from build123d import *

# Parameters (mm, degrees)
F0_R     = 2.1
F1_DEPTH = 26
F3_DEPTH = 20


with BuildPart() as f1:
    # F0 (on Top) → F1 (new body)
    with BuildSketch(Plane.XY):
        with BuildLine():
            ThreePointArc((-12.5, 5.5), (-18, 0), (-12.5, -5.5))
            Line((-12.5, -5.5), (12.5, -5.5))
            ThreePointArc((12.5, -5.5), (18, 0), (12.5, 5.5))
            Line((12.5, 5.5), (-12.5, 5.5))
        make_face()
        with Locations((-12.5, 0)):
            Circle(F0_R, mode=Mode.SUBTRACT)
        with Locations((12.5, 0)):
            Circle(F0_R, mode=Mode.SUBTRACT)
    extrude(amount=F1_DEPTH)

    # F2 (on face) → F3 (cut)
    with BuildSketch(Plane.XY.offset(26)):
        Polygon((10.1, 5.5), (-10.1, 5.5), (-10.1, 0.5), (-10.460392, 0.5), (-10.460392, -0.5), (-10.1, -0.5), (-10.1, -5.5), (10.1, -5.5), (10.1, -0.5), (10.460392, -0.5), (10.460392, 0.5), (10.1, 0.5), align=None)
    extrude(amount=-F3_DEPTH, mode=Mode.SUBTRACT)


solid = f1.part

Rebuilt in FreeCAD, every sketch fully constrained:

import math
import FreeCAD as App
import Part
import Sketcher


def add_polygon(sketch, points):
    """Adds a closed chain of lines whose ends are joined by coincident constraints."""
    first, n = sketch.GeometryCount, len(points)
    for a, b in zip(points, points[1:] + points[:1]):
        sketch.addGeometry(Part.LineSegment(App.Vector(*a, 0), App.Vector(*b, 0)), False)
    for i in range(n):
        sketch.addConstraint(Sketcher.Constraint("Coincident", first + i, 2, first + (i + 1) % n, 1))

doc = App.newDocument("Part")
body = doc.addObject("PartDesign::Body", "Body")

sketch1 = body.newObject("Sketcher::SketchObject", "Sketch")
sketch1.AttachmentSupport = (doc.getObject("XY_Plane"), [""])
sketch1.MapMode = "FlatFace"
sketch1.addGeometry(Part.ArcOfCircle(Part.Circle(App.Vector(-12.5, 0, 0), App.Vector(0, 0, 1), 5.5), math.radians(90), math.radians(270)), False)
sketch1.addGeometry(Part.LineSegment(App.Vector(-12.5, -5.5, 0), App.Vector(12.5, -5.5, 0)), False)
sketch1.addGeometry(Part.ArcOfCircle(Part.Circle(App.Vector(12.5, 0, 0), App.Vector(0, 0, 1), 5.5), math.radians(-90), math.radians(90)), False)
sketch1.addGeometry(Part.LineSegment(App.Vector(12.5, 5.5, 0), App.Vector(-12.5, 5.5, 0)), False)
sketch1.addGeometry(Part.Circle(App.Vector(-12.5, 0, 0), App.Vector(0, 0, 1), 2.1), False)
sketch1.addGeometry(Part.Circle(App.Vector(12.5, 0, 0), App.Vector(0, 0, 1), 2.1), False)
sketch1.addConstraint(Sketcher.Constraint("Tangent", 0, 2, 1, 1))
sketch1.addConstraint(Sketcher.Constraint("Tangent", 1, 2, 2, 1))
sketch1.addConstraint(Sketcher.Constraint("Tangent", 2, 2, 3, 1))
sketch1.addConstraint(Sketcher.Constraint("Tangent", 3, 2, 0, 1))
sketch1.addConstraint(Sketcher.Constraint("Horizontal", 1))
sketch1.addConstraint(Sketcher.Constraint("Horizontal", 3))
sketch1.addConstraint(Sketcher.Constraint("Coincident", 4, 3, 0, 3))
sketch1.addConstraint(Sketcher.Constraint("Coincident", 5, 3, 2, 3))
sketch1.addConstraint(Sketcher.Constraint("Equal", 4, 5))
sketch1.addConstraint(Sketcher.Constraint("Symmetric", 0, 3, 2, 3, -1, 1))
sketch1.addConstraint(Sketcher.Constraint("Diameter", 4, 4.2))
sketch1.addConstraint(Sketcher.Constraint("Radius", 0, 5.5))
sketch1.addConstraint(Sketcher.Constraint("DistanceX", 1, 1, 1, 2, 25.0))
pad1 = body.newObject("PartDesign::Pad", "Pad")
pad1.Profile = sketch1
pad1.Length = 26

sketch2 = body.newObject("Sketcher::SketchObject", "Sketch001")
sketch2.AttachmentSupport = (doc.getObject("XY_Plane"), [""])
sketch2.MapMode = "FlatFace"
sketch2.AttachmentOffset = App.Placement(App.Vector(0, 0, 26), App.Rotation())
add_polygon(sketch2, [(10.1, 5.5), (-10.1, 5.5), (-10.1, 0.5), (-10.46, 0.5), (-10.46, -0.5), (-10.1, -0.5), (-10.1, -5.5), (10.1, -5.5), (10.1, -0.5), (10.46, -0.5), (10.46, 0.5), (10.1, 0.5)])
sketch2.addConstraint(Sketcher.Constraint("Horizontal", 0))
sketch2.addConstraint(Sketcher.Constraint("Vertical", 1))
sketch2.addConstraint(Sketcher.Constraint("Horizontal", 2))
sketch2.addConstraint(Sketcher.Constraint("Vertical", 3))
sketch2.addConstraint(Sketcher.Constraint("Horizontal", 4))
sketch2.addConstraint(Sketcher.Constraint("Vertical", 5))
sketch2.addConstraint(Sketcher.Constraint("Horizontal", 6))
sketch2.addConstraint(Sketcher.Constraint("Vertical", 7))
sketch2.addConstraint(Sketcher.Constraint("Horizontal", 8))
sketch2.addConstraint(Sketcher.Constraint("Vertical", 9))
sketch2.addConstraint(Sketcher.Constraint("Horizontal", 10))
sketch2.addConstraint(Sketcher.Constraint("Vertical", 11))
sketch2.addConstraint(Sketcher.Constraint("Symmetric", 0, 2, 6, 2, -1, 1))
sketch2.addConstraint(Sketcher.Constraint("Symmetric", 2, 2, 8, 2, -1, 1))
sketch2.addConstraint(Sketcher.Constraint("Symmetric", 4, 2, 10, 2, -1, 1))
sketch2.addConstraint(Sketcher.Constraint("Symmetric", 4, 2, 7, 2, -2))
sketch2.addConstraint(Sketcher.Constraint("DistanceY", 1, 2, 1, 1, 5.0))
sketch2.addConstraint(Sketcher.Constraint("DistanceY", 3, 2, 3, 1, 1.0))
sketch2.addConstraint(Sketcher.Constraint("DistanceX", 0, 2, 0, 1, 20.2))
sketch2.addConstraint(Sketcher.Constraint("DistanceX", 2, 2, 2, 1, 0.360392))
pocket1 = body.newObject("PartDesign::Pocket", "Pocket")
pocket1.Profile = sketch2
pocket1.Length = 20

doc.recompute()
